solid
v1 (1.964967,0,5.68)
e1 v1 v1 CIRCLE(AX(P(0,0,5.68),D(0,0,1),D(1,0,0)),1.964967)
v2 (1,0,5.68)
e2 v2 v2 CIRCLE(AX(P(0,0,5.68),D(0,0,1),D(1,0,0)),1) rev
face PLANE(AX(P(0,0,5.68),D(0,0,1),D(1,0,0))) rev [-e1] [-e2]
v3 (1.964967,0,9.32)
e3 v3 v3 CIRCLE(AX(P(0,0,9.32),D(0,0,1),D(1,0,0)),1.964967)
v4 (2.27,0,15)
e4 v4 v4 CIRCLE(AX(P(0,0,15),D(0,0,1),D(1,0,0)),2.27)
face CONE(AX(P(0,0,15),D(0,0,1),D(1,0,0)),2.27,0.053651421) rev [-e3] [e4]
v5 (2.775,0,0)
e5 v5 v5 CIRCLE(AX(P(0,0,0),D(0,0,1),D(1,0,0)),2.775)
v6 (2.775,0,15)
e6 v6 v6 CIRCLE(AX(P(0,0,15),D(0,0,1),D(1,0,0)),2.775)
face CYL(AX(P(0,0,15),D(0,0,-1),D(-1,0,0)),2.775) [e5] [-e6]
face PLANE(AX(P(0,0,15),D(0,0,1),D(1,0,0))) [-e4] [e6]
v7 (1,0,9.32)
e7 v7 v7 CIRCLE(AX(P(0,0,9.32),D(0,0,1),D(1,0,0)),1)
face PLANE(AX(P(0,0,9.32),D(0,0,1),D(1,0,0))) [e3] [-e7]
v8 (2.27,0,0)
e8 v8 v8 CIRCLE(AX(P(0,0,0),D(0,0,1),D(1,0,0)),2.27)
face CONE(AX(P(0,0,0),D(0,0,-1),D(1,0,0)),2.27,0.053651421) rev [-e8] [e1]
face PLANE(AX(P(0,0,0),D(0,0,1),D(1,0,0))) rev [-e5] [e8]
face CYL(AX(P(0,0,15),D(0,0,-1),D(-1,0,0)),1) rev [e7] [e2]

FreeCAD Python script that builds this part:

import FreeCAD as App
import Part
import Sketcher
from FreeCAD import Vector
Q = App.Units.Quantity

doc = App.newDocument("Part")
body = doc.addObject("PartDesign::Body", "Body")

# Sketch on XY plane
sketch1 = body.newObject("Sketcher::SketchObject", "Sketch")
sketch1.AttachmentSupport = (doc.getObject("XY_Plane"), [""])
sketch1.MapMode = "FlatFace"
sketch1.addGeometry(Part.Circle(Vector(0, 0, 0), Vector(0, 0, 1), 2.775), False)
sketch1.addConstraint(Sketcher.Constraint("Coincident", 0, 3, -1, 1))
sketch1.addConstraint(Sketcher.Constraint("Diameter", 0, Q("5.55 mm")))
pad1 = body.newObject("PartDesign::Pad", "Pad")
pad1.Profile = sketch1
pad1.Length = 15

# Sketch on XY plane
sketch2 = body.newObject("Sketcher::SketchObject", "Sketch001")
sketch2.AttachmentSupport = (doc.getObject("XY_Plane"), [""])
sketch2.MapMode = "FlatFace"
sketch2.addGeometry(Part.Circle(Vector(0, 0, 0), Vector(0, 0, 1), 2.27), False)
sketch2.addConstraint(Sketcher.Constraint("Coincident", 0, 3, -1, 1))
sketch2.addConstraint(Sketcher.Constraint("Diameter", 0, Q("4.54 mm")))
pocket1 = body.newObject("PartDesign::Pocket", "Pocket")
pocket1.Profile = sketch2
pocket1.Length = 5.68
pocket1.Reversed = True
pocket1.TaperAngle = -3.074

# Sketch on XY plane
sketch3 = body.newObject("Sketcher::SketchObject", "Sketch002")
sketch3.AttachmentSupport = (doc.getObject("XY_Plane"), [""])
sketch3.MapMode = "FlatFace"
sketch3.addGeometry(Part.Circle(Vector(0, 0, 0), Vector(0, 0, 1), 1), False)
sketch3.addConstraint(Sketcher.Constraint("Coincident", 0, 3, -1, 1))
sketch3.addConstraint(Sketcher.Constraint("Diameter", 0, Q("2 mm")))
pocket2 = body.newObject("PartDesign::Pocket", "Pocket001")
pocket2.Profile = sketch3
pocket2.Type = "ThroughAll"
pocket2.Reversed = True

# Sketch on XY plane
sketch4 = body.newObject("Sketcher::SketchObject", "Sketch003")
sketch4.AttachmentSupport = (doc.getObject("XY_Plane"), [""])
sketch4.MapMode = "FlatFace"
sketch4.AttachmentOffset = App.Placement(Vector(0, 0, 15), App.Rotation())
sketch4.addGeometry(Part.Circle(Vector(0, 0, 0), Vector(0, 0, 1), 2.27), False)
sketch4.addConstraint(Sketcher.Constraint("Coincident", 0, 3, -1, 1))
sketch4.addConstraint(Sketcher.Constraint("Diameter", 0, Q("4.54 mm")))
pocket3 = body.newObject("PartDesign::Pocket", "Pocket002")
pocket3.Profile = sketch4
pocket3.Length = 5.68
pocket3.TaperAngle = -3.074

doc.recompute()
